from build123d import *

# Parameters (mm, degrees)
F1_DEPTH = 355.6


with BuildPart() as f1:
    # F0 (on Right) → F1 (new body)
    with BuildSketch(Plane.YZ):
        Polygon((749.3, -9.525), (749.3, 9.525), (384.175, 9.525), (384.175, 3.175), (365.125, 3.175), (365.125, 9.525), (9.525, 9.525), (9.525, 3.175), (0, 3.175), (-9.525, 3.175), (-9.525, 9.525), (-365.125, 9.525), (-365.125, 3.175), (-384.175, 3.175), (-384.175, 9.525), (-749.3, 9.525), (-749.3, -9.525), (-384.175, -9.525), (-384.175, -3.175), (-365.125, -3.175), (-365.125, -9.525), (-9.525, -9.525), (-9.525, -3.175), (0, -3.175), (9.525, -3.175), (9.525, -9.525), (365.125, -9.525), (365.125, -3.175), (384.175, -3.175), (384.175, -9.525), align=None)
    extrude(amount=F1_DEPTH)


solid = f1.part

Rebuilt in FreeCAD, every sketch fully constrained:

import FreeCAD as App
import Part
import Sketcher

V = App.Vector
Q = App.Units.Quantity

doc = App.newDocument("Part")
body = doc.addObject("PartDesign::Body", "Body")

# Sketch on YZ plane
sketch1 = doc.addObject("Sketcher::SketchObject", "Sketch")
body.addObject(sketch1)
sketch1.AttachmentSupport = (doc.YZ_Plane, [""])
sketch1.MapMode = "FlatFace"
sketch1.addGeometry([
    Part.LineSegment(V(749, -10, 0), V(749, 10, 0)),  # 0
    Part.LineSegment(V(749, 10, 0), V(384, 10, 0)),  # 1
    Part.LineSegment(V(384, 10, 0), V(384, 3, 0)),  # 2
    Part.LineSegment(V(384, 3, 0), V(365, 3, 0)),  # 3
    Part.LineSegment(V(365, 3, 0), V(365, 10, 0)),  # 4
    Part.LineSegment(V(365, 10, 0), V(10, 10, 0)),  # 5
    Part.LineSegment(V(10, 10, 0), V(10, 3, 0)),  # 6
    Part.LineSegment(V(10, 3, 0), V(-10, 3, 0)),  # 7
    Part.LineSegment(V(-10, 3, 0), V(-10, 10, 0)),  # 8
    Part.LineSegment(V(-10, 10, 0), V(-365, 10, 0)),  # 9
    Part.LineSegment(V(-365, 10, 0), V(-365, 3, 0)),  # 10
    Part.LineSegment(V(-365, 3, 0), V(-384, 3, 0)),  # 11
    Part.LineSegment(V(-384, 3, 0), V(-384, 10, 0)),  # 12
    Part.LineSegment(V(-384, 10, 0), V(-749, 10, 0)),  # 13
    Part.LineSegment(V(-749, 10, 0), V(-749, -10, 0)),  # 14
    Part.LineSegment(V(-749, -10, 0), V(-384, -10, 0)),  # 15
    Part.LineSegment(V(-384, -10, 0), V(-384, -3, 0)),  # 16
    Part.LineSegment(V(-384, -3, 0), V(-365, -3, 0)),  # 17
    Part.LineSegment(V(-365, -3, 0), V(-365, -10, 0)),  # 18
    Part.LineSegment(V(-365, -10, 0), V(-10, -10, 0)),  # 19
    Part.LineSegment(V(-10, -10, 0), V(-10, -3, 0)),  # 20
    Part.LineSegment(V(-10, -3, 0), V(10, -3, 0)),  # 21
    Part.LineSegment(V(10, -3, 0), V(10, -10, 0)),  # 22
    Part.LineSegment(V(10, -10, 0), V(365, -10, 0)),  # 23
    Part.LineSegment(V(365, -10, 0), V(365, -3, 0)),  # 24
    Part.LineSegment(V(365, -3, 0), V(384, -3, 0)),  # 25
    Part.LineSegment(V(384, -3, 0), V(384, -10, 0)),  # 26
    Part.LineSegment(V(384, -10, 0), V(749, -10, 0)),  # 27
], False)
sketch1.addConstraint([
    Sketcher.Constraint("Coincident", 0, 2, 1, 1),
    Sketcher.Constraint("Coincident", 1, 2, 2, 1),
    Sketcher.Constraint("Coincident", 2, 2, 3, 1),
    Sketcher.Constraint("Coincident", 3, 2, 4, 1),
    Sketcher.Constraint("Coincident", 4, 2, 5, 1),
    Sketcher.Constraint("Coincident", 5, 2, 6, 1),
    Sketcher.Constraint("Coincident", 6, 2, 7, 1),
    Sketcher.Constraint("Coincident", 7, 2, 8, 1),
    Sketcher.Constraint("Coincident", 8, 2, 9, 1),
    Sketcher.Constraint("Coincident", 9, 2, 10, 1),
    Sketcher.Constraint("Coincident", 10, 2, 11, 1),
    Sketcher.Constraint("Coincident", 11, 2, 12, 1),
    Sketcher.Constraint("Coincident", 12, 2, 13, 1),
    Sketcher.Constraint("Coincident", 13, 2, 14, 1),
    Sketcher.Constraint("Coincident", 14, 2, 15, 1),
    Sketcher.Constraint("Coincident", 15, 2, 16, 1),
    Sketcher.Constraint("Coincident", 16, 2, 17, 1),
    Sketcher.Constraint("Coincident", 17, 2, 18, 1),
    Sketcher.Constraint("Coincident", 18, 2, 19, 1),
    Sketcher.Constraint("Coincident", 19, 2, 20, 1),
    Sketcher.Constraint("Coincident", 20, 2, 21, 1),
    Sketcher.Constraint("Coincident", 21, 2, 22, 1),
    Sketcher.Constraint("Coincident", 22, 2, 23, 1),
    Sketcher.Constraint("Coincident", 23, 2, 24, 1),
    Sketcher.Constraint("Coincident", 24, 2, 25, 1),
    Sketcher.Constraint("Coincident", 25, 2, 26, 1),
    Sketcher.Constraint("Coincident", 26, 2, 27, 1),
    Sketcher.Constraint("Coincident", 27, 2, 0, 1),
    Sketcher.Constraint("Vertical", 0),
    Sketcher.Constraint("Horizontal", 1),
    Sketcher.Constraint("Vertical", 2),
    Sketcher.Constraint("Horizontal", 3),
    Sketcher.Constraint("Vertical", 4),
    Sketcher.Constraint("Horizontal", 5),
    Sketcher.Constraint("Vertical", 6),
    Sketcher.Constraint("Horizontal", 7),
    Sketcher.Constraint("Vertical", 8),
    Sketcher.Constraint("Horizontal", 9),
    Sketcher.Constraint("Vertical", 10),
    Sketcher.Constraint("Horizontal", 11),
    Sketcher.Constraint("Vertical", 12),
    Sketcher.Constraint("Horizontal", 13),
    Sketcher.Constraint("Vertical", 14),
    Sketcher.Constraint("Horizontal", 15),
    Sketcher.Constraint("Vertical", 16),
    Sketcher.Constraint("Horizontal", 17),
    Sketcher.Constraint("Vertical", 18),
    Sketcher.Constraint("Horizontal", 19),
    Sketcher.Constraint("Vertical", 20),
    Sketcher.Constraint("Horizontal", 21),
    Sketcher.Constraint("Vertical", 22),
    Sketcher.Constraint("Horizontal", 23),
    Sketcher.Constraint("Vertical", 24),
    Sketcher.Constraint("Horizontal", 25),
    Sketcher.Constraint("Vertical", 26),
    Sketcher.Constraint("Horizontal", 27),
    Sketcher.Constraint("Symmetric", 0, 2, 14, 2, -1, 1),
    Sketcher.Constraint("Symmetric", 2, 2, 16, 2, -1, 1),
    Sketcher.Constraint("Symmetric", 4, 2, 18, 2, -1, 1),
    Sketcher.Constraint("Symmetric", 6, 2, 20, 2, -1, 1),
    Sketcher.Constraint("Symmetric", 8, 2, 22, 2, -1, 1),
    Sketcher.Constraint("Symmetric", 10, 2, 24, 2, -1, 1),
    Sketcher.Constraint("Symmetric", 12, 2, 26, 2, -1, 1),
    Sketcher.Constraint("Symmetric", 5, 2, 8, 2, -2),
    Sketcher.Constraint("Symmetric", 3, 2, 10, 2, -2),
    Sketcher.Constraint("Symmetric", 1, 2, 12, 2, -2),
    Sketcher.Constraint("Horizontal", 1, 2, 4, 2),
    Sketcher.Constraint("Horizontal", 3, 2, 6, 2),
    Sketcher.Constraint("Equal", 3, 7),
    Sketcher.Constraint("Equal", 25, 0),
    Sketcher.Constraint("DistanceX", 5, 2, 5, 1, Q("14 in")),
    Sketcher.Constraint("DistanceX", 3, 2, 3, 1, Q("0.75 in")),
    Sketcher.Constraint("DistanceY", 2, 2, 2, 1, Q("0.25 in")),
    Sketcher.Constraint("DistanceX", -1, 1, 0, 2, Q("29.5 in")),
])
pad1 = doc.addObject("PartDesign::Pad", "Pad")
body.addObject(pad1)
pad1.Profile = sketch1
pad1.Length = Q("14 in")

doc.recompute()
